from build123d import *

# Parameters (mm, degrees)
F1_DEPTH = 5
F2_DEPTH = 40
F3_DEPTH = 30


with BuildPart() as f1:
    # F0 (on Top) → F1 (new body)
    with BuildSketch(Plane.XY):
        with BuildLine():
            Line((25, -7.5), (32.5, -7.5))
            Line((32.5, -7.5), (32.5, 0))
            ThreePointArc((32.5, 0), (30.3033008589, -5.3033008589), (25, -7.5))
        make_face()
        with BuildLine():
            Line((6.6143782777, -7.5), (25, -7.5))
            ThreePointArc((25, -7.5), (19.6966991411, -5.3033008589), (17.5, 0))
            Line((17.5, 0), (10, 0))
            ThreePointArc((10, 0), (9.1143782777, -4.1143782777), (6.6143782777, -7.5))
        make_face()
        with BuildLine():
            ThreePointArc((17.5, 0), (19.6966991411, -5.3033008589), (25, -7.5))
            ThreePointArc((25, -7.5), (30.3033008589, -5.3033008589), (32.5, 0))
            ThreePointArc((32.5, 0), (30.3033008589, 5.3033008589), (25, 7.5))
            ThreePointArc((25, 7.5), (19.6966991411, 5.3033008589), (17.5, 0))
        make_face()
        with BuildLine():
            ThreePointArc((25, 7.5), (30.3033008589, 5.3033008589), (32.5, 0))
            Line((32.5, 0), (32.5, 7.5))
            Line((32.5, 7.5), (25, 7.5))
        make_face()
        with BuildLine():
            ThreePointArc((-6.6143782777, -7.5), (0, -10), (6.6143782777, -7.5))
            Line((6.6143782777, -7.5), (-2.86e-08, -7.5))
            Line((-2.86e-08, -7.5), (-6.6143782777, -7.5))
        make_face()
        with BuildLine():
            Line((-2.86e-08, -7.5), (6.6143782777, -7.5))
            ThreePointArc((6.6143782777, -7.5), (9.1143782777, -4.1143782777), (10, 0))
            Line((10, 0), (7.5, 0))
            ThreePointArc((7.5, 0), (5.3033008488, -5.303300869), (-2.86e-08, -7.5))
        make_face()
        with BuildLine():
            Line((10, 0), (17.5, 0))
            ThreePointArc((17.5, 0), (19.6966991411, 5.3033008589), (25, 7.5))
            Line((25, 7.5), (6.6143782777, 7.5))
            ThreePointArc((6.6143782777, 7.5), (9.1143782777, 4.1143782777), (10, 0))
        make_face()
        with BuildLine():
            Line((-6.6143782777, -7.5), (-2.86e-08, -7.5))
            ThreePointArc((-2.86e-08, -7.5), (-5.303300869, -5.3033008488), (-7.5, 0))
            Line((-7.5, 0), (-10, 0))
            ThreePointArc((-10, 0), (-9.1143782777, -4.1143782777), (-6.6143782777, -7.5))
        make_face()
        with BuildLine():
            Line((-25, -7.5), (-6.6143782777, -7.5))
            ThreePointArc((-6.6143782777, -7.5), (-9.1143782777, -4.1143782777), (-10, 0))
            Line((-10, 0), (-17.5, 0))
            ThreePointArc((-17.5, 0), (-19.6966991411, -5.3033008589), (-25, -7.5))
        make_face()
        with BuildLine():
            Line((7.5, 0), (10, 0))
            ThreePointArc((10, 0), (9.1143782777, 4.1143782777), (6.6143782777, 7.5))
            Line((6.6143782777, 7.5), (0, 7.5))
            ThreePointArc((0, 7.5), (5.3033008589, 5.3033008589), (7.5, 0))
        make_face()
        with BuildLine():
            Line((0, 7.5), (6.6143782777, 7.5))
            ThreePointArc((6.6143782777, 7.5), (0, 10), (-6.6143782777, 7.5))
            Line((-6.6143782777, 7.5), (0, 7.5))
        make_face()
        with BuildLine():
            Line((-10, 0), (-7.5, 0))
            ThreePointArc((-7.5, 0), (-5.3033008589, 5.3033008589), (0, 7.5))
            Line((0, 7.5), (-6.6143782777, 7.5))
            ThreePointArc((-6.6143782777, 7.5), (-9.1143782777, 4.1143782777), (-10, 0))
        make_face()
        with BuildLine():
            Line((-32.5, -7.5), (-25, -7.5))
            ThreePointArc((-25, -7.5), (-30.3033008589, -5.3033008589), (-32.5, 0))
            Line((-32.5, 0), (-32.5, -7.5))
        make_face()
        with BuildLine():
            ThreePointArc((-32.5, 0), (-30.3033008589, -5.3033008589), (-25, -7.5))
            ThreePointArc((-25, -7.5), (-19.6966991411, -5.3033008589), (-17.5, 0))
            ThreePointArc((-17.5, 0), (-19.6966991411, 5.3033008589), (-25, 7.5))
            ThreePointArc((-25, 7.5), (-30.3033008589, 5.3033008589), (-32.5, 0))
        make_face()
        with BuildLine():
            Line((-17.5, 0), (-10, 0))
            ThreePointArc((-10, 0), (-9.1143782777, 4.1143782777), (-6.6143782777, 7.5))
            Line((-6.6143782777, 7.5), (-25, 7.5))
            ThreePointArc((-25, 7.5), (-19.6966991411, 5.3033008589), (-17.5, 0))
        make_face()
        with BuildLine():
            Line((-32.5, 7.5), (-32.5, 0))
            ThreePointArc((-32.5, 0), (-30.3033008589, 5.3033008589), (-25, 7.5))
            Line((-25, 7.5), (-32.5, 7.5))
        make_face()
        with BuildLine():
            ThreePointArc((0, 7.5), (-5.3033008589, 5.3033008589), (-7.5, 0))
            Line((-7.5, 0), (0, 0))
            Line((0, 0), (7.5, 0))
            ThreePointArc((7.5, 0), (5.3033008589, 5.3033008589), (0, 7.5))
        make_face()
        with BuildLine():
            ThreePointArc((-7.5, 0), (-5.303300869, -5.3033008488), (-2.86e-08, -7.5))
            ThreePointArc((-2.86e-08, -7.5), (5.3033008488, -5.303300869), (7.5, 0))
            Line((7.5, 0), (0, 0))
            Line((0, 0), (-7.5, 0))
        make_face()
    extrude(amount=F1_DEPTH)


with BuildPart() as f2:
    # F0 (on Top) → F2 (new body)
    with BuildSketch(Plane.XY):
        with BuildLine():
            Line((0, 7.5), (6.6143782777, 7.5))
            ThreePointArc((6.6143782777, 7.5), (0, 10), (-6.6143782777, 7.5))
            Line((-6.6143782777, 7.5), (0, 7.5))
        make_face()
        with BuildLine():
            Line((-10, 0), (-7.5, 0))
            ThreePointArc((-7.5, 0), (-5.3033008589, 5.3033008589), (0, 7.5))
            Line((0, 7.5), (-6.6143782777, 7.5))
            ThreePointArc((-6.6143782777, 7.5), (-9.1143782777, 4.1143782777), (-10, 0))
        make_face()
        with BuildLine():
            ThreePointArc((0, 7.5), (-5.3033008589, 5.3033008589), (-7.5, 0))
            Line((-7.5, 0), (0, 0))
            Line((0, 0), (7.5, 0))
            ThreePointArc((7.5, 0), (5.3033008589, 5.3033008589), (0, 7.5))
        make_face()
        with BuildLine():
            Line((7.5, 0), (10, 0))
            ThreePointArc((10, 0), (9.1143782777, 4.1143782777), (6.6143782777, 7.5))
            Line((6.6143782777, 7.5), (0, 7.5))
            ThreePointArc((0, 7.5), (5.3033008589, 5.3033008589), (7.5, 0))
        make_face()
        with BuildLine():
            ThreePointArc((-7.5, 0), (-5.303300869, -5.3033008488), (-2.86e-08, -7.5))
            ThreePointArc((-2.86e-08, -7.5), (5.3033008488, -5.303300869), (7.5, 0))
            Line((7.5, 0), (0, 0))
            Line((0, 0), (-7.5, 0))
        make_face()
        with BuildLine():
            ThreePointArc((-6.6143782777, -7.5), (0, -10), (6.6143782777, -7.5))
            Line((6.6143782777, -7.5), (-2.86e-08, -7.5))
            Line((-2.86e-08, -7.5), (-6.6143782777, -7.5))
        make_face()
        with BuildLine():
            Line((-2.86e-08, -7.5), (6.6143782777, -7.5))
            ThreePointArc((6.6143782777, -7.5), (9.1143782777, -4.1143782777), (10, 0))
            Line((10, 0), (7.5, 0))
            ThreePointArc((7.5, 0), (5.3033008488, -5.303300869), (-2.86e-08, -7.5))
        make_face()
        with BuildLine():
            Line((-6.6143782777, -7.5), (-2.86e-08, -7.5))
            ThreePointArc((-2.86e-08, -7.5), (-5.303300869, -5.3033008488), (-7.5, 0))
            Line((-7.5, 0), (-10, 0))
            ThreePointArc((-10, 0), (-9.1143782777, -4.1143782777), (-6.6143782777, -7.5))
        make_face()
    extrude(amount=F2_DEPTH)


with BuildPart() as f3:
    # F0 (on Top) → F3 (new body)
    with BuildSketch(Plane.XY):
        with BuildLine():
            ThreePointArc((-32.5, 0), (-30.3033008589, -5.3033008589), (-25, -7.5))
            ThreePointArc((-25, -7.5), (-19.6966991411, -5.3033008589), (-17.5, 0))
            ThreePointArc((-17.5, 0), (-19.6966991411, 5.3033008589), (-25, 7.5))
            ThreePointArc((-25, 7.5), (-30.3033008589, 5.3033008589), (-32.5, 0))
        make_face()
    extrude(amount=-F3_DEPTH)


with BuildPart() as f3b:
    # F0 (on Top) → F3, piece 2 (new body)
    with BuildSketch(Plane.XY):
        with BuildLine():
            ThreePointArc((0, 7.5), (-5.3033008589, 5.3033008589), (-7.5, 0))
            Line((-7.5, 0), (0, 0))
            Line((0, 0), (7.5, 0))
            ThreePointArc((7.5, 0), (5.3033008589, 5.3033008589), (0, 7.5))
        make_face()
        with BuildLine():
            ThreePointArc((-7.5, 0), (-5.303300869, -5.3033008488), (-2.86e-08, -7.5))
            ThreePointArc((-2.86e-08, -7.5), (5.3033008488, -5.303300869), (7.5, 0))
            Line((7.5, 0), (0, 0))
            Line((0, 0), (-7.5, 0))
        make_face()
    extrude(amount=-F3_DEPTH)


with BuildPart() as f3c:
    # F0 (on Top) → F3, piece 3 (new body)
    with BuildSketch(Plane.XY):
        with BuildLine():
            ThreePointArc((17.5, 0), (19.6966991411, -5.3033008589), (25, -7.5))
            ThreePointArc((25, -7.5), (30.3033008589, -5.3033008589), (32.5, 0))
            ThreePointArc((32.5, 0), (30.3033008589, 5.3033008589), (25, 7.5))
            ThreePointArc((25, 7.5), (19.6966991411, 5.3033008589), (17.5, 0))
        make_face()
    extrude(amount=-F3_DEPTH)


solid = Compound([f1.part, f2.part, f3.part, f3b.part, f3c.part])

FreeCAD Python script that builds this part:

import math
import FreeCAD as App
import Part
import Sketcher

doc = App.newDocument("Part")
params = doc.addObject("Spreadsheet::Sheet", "Params")
for row, (alias, value) in enumerate([
    ("sketch1_radius", "10 mm"),
    ("sketch1_height", "15 mm"),
    ("pad1_length", "5 mm"),
    ("sketch2_radius", "10 mm"),
    ("pad2_length", "40 mm"),
    ("sketch3_diameter", "15 mm"),
    ("pad3_length", "30 mm"),
    ("sketch4_diameter", "15 mm"),
    ("pad4_length", "30 mm"),
    ("sketch5_diameter", "15 mm"),
    ("pad5_length", "30 mm"),
], start=1):
    params.set(f"A{row}", alias)
    params.set(f"B{row}", "=" + value)
    params.setAlias(f"B{row}", alias)

body = doc.addObject("PartDesign::Body", "Body")

# Sketch on XY plane
sketch1 = body.newObject("Sketcher::SketchObject", "Sketch")
sketch1.AttachmentSupport = (doc.getObject("XY_Plane"), [""])
sketch1.MapMode = "FlatFace"
sketch1.addGeometry([
    Part.LineSegment(App.Vector(32, -8, 0), App.Vector(32, 8, 0)),  # 0
    Part.LineSegment(App.Vector(32, 8, 0), App.Vector(7, 8, 0)),  # 1
    Part.ArcOfCircle(Part.Circle(App.Vector(0, 0, 0), App.Vector(0, 0, 1), 10), math.radians(49), math.radians(131)),  # 2
    Part.LineSegment(App.Vector(-7, 8, 0), App.Vector(-32, 8, 0)),  # 3
    Part.LineSegment(App.Vector(-32, 8, 0), App.Vector(-32, -8, 0)),  # 4
    Part.LineSegment(App.Vector(-32, -8, 0), App.Vector(-7, -8, 0)),  # 5
    Part.ArcOfCircle(Part.Circle(App.Vector(0, 0, 0), App.Vector(0, 0, 1), 10), math.radians(-131), math.radians(-49)),  # 6
    Part.LineSegment(App.Vector(7, -8, 0), App.Vector(32, -8, 0)),  # 7
], False)
sketch1.addConstraint([
    Sketcher.Constraint("Coincident", 0, 2, 1, 1),
    Sketcher.Constraint("Coincident", 1, 2, 2, 1),
    Sketcher.Constraint("Coincident", 2, 2, 3, 1),
    Sketcher.Constraint("Coincident", 3, 2, 4, 1),
    Sketcher.Constraint("Coincident", 4, 2, 5, 1),
    Sketcher.Constraint("Coincident", 5, 2, 6, 1),
    Sketcher.Constraint("Coincident", 6, 2, 7, 1),
    Sketcher.Constraint("Coincident", 7, 2, 0, 1),
    Sketcher.Constraint("Vertical", 0),
    Sketcher.Constraint("Horizontal", 1),
    Sketcher.Constraint("Horizontal", 3),
    Sketcher.Constraint("Vertical", 4),
    Sketcher.Constraint("Horizontal", 5),
    Sketcher.Constraint("Horizontal", 7),
    Sketcher.Constraint("Coincident", 2, 3, -1, 1),
    Sketcher.Constraint("Coincident", 6, 3, -1, 1),
    Sketcher.Constraint("Equal", 2, 6),
    Sketcher.Constraint("Symmetric", 0, 2, 4, 2, -1, 1),
    Sketcher.Constraint("Horizontal", 1, 2, 2, 2),
    Sketcher.Constraint("Horizontal", 5, 2, 6, 2),
    Sketcher.Constraint("Radius", 2, 10.0),
    Sketcher.Constraint("DistanceY", 0, 1, 0, 2, 15.0),
    Sketcher.Constraint("DistanceX", 3, 2, 0, 2, 65.0),
])
sketch1.setExpression("Constraints[20]", "Params.sketch1_radius")
sketch1.setExpression("Constraints[21]", "Params.sketch1_height")
pad1 = body.newObject("PartDesign::Pad", "Pad")
pad1.Profile = sketch1
pad1.setExpression("Length", "Params.pad1_length")
body2 = doc.addObject("PartDesign::Body", "Body001")

# Sketch on XY plane
sketch2 = body2.newObject("Sketcher::SketchObject", "Sketch001")
sketch2.AttachmentSupport = (doc.getObject("XY_Plane001"), [""])
sketch2.MapMode = "FlatFace"
sketch2.addGeometry([
    Part.ArcOfCircle(Part.Circle(App.Vector(0, 0, 0), App.Vector(0, 0, 1), 10), math.radians(49), math.radians(131)),  # 0
    Part.ArcOfCircle(Part.Circle(App.Vector(0, 0, 0), App.Vector(0, 0, 1), 10), math.radians(131), math.radians(180)),  # 1
    Part.ArcOfCircle(Part.Circle(App.Vector(0, 0, 0), App.Vector(0, 0, 1), 10), math.radians(180), math.radians(229)),  # 2
    Part.ArcOfCircle(Part.Circle(App.Vector(0, 0, 0), App.Vector(0, 0, 1), 10), math.radians(-131), math.radians(-49)),  # 3
    Part.ArcOfCircle(Part.Circle(App.Vector(0, 0, 0), App.Vector(0, 0, 1), 10), math.radians(-49), math.radians(0)),  # 4
    Part.ArcOfCircle(Part.Circle(App.Vector(0, 0, 0), App.Vector(0, 0, 1), 10), math.radians(0), math.radians(49)),  # 5
], False)
sketch2.addConstraint([
    Sketcher.Constraint("Tangent", 0, 2, 1, 1),
    Sketcher.Constraint("Tangent", 1, 2, 2, 1),
    Sketcher.Constraint("Tangent", 2, 2, 3, 1),
    Sketcher.Constraint("Tangent", 3, 2, 4, 1),
    Sketcher.Constraint("Tangent", 4, 2, 5, 1),
    Sketcher.Constraint("Tangent", 5, 2, 0, 1),
    Sketcher.Constraint("Coincident", 0, 3, -1, 1),
    Sketcher.Constraint("Coincident", 2, 3, -1, 1),
    Sketcher.Constraint("Equal", 2, 3),
    Sketcher.Constraint("PointOnObject", 1, 2, -1),
    Sketcher.Constraint("PointOnObject", 4, 2, -1),
    Sketcher.Constraint("Horizontal", 2, 2, 3, 2),
    Sketcher.Constraint("Horizontal", 0, 2, 5, 2),
    Sketcher.Constraint("Vertical", 0, 2, 2, 2),
    Sketcher.Constraint("Radius", 0, 10.0),
    Sketcher.Constraint("DistanceY", -1, 1, 0, 2, 7.5),
])
sketch2.setExpression("Constraints[14]", "Params.sketch2_radius")
pad2 = body2.newObject("PartDesign::Pad", "Pad001")
pad2.Profile = sketch2
pad2.setExpression("Length", "Params.pad2_length")
body3 = doc.addObject("PartDesign::Body", "Body002")

# Sketch on XY plane
sketch3 = body3.newObject("Sketcher::SketchObject", "Sketch002")
sketch3.AttachmentSupport = (doc.getObject("XY_Plane002"), [""])
sketch3.MapMode = "FlatFace"
sketch3.addGeometry(Part.Circle(App.Vector(-25, 0, 0), App.Vector(0, 0, 1), 8), False)
sketch3.addConstraint([
    Sketcher.Constraint("PointOnObject", 0, 3, -1),
    Sketcher.Constraint("Diameter", 0, 15.0),
    Sketcher.Constraint("DistanceX", 0, 3, -1, 1, 25.0),
])
sketch3.setExpression("Constraints[1]", "Params.sketch3_diameter")
pad3 = body3.newObject("PartDesign::Pad", "Pad002")
pad3.Profile = sketch3
pad3.setExpression("Length", "Params.pad3_length")
pad3.Reversed = True
body4 = doc.addObject("PartDesign::Body", "Body003")

# Sketch on XY plane
sketch4 = body4.newObject("Sketcher::SketchObject", "Sketch003")
sketch4.AttachmentSupport = (doc.getObject("XY_Plane003"), [""])
sketch4.MapMode = "FlatFace"
sketch4.addGeometry(Part.Circle(App.Vector(0, 0, 0), App.Vector(0, 0, 1), 8), False)
sketch4.addConstraint([
    Sketcher.Constraint("Coincident", 0, 3, -1, 1),
    Sketcher.Constraint("Diameter", 0, 15.0),
])
sketch4.setExpression("Constraints[1]", "Params.sketch4_diameter")
pad4 = body4.newObject("PartDesign::Pad", "Pad003")
pad4.Profile = sketch4
pad4.setExpression("Length", "Params.pad4_length")
pad4.Reversed = True
body5 = doc.addObject("PartDesign::Body", "Body004")

# Sketch on XY plane
sketch5 = body5.newObject("Sketcher::SketchObject", "Sketch004")
sketch5.AttachmentSupport = (doc.getObject("XY_Plane004"), [""])
sketch5.MapMode = "FlatFace"
sketch5.addGeometry(Part.Circle(App.Vector(25, 0, 0), App.Vector(0, 0, 1), 8), False)
sketch5.addConstraint([
    Sketcher.Constraint("PointOnObject", 0, 3, -1),
    Sketcher.Constraint("Diameter", 0, 15.0),
    Sketcher.Constraint("DistanceX", -1, 1, 0, 3, 25.0),
])
sketch5.setExpression("Constraints[1]", "Params.sketch5_diameter")
pad5 = body5.newObject("PartDesign::Pad", "Pad004")
pad5.Profile = sketch5
pad5.setExpression("Length", "Params.pad5_length")
pad5.Reversed = True

doc.recompute()
